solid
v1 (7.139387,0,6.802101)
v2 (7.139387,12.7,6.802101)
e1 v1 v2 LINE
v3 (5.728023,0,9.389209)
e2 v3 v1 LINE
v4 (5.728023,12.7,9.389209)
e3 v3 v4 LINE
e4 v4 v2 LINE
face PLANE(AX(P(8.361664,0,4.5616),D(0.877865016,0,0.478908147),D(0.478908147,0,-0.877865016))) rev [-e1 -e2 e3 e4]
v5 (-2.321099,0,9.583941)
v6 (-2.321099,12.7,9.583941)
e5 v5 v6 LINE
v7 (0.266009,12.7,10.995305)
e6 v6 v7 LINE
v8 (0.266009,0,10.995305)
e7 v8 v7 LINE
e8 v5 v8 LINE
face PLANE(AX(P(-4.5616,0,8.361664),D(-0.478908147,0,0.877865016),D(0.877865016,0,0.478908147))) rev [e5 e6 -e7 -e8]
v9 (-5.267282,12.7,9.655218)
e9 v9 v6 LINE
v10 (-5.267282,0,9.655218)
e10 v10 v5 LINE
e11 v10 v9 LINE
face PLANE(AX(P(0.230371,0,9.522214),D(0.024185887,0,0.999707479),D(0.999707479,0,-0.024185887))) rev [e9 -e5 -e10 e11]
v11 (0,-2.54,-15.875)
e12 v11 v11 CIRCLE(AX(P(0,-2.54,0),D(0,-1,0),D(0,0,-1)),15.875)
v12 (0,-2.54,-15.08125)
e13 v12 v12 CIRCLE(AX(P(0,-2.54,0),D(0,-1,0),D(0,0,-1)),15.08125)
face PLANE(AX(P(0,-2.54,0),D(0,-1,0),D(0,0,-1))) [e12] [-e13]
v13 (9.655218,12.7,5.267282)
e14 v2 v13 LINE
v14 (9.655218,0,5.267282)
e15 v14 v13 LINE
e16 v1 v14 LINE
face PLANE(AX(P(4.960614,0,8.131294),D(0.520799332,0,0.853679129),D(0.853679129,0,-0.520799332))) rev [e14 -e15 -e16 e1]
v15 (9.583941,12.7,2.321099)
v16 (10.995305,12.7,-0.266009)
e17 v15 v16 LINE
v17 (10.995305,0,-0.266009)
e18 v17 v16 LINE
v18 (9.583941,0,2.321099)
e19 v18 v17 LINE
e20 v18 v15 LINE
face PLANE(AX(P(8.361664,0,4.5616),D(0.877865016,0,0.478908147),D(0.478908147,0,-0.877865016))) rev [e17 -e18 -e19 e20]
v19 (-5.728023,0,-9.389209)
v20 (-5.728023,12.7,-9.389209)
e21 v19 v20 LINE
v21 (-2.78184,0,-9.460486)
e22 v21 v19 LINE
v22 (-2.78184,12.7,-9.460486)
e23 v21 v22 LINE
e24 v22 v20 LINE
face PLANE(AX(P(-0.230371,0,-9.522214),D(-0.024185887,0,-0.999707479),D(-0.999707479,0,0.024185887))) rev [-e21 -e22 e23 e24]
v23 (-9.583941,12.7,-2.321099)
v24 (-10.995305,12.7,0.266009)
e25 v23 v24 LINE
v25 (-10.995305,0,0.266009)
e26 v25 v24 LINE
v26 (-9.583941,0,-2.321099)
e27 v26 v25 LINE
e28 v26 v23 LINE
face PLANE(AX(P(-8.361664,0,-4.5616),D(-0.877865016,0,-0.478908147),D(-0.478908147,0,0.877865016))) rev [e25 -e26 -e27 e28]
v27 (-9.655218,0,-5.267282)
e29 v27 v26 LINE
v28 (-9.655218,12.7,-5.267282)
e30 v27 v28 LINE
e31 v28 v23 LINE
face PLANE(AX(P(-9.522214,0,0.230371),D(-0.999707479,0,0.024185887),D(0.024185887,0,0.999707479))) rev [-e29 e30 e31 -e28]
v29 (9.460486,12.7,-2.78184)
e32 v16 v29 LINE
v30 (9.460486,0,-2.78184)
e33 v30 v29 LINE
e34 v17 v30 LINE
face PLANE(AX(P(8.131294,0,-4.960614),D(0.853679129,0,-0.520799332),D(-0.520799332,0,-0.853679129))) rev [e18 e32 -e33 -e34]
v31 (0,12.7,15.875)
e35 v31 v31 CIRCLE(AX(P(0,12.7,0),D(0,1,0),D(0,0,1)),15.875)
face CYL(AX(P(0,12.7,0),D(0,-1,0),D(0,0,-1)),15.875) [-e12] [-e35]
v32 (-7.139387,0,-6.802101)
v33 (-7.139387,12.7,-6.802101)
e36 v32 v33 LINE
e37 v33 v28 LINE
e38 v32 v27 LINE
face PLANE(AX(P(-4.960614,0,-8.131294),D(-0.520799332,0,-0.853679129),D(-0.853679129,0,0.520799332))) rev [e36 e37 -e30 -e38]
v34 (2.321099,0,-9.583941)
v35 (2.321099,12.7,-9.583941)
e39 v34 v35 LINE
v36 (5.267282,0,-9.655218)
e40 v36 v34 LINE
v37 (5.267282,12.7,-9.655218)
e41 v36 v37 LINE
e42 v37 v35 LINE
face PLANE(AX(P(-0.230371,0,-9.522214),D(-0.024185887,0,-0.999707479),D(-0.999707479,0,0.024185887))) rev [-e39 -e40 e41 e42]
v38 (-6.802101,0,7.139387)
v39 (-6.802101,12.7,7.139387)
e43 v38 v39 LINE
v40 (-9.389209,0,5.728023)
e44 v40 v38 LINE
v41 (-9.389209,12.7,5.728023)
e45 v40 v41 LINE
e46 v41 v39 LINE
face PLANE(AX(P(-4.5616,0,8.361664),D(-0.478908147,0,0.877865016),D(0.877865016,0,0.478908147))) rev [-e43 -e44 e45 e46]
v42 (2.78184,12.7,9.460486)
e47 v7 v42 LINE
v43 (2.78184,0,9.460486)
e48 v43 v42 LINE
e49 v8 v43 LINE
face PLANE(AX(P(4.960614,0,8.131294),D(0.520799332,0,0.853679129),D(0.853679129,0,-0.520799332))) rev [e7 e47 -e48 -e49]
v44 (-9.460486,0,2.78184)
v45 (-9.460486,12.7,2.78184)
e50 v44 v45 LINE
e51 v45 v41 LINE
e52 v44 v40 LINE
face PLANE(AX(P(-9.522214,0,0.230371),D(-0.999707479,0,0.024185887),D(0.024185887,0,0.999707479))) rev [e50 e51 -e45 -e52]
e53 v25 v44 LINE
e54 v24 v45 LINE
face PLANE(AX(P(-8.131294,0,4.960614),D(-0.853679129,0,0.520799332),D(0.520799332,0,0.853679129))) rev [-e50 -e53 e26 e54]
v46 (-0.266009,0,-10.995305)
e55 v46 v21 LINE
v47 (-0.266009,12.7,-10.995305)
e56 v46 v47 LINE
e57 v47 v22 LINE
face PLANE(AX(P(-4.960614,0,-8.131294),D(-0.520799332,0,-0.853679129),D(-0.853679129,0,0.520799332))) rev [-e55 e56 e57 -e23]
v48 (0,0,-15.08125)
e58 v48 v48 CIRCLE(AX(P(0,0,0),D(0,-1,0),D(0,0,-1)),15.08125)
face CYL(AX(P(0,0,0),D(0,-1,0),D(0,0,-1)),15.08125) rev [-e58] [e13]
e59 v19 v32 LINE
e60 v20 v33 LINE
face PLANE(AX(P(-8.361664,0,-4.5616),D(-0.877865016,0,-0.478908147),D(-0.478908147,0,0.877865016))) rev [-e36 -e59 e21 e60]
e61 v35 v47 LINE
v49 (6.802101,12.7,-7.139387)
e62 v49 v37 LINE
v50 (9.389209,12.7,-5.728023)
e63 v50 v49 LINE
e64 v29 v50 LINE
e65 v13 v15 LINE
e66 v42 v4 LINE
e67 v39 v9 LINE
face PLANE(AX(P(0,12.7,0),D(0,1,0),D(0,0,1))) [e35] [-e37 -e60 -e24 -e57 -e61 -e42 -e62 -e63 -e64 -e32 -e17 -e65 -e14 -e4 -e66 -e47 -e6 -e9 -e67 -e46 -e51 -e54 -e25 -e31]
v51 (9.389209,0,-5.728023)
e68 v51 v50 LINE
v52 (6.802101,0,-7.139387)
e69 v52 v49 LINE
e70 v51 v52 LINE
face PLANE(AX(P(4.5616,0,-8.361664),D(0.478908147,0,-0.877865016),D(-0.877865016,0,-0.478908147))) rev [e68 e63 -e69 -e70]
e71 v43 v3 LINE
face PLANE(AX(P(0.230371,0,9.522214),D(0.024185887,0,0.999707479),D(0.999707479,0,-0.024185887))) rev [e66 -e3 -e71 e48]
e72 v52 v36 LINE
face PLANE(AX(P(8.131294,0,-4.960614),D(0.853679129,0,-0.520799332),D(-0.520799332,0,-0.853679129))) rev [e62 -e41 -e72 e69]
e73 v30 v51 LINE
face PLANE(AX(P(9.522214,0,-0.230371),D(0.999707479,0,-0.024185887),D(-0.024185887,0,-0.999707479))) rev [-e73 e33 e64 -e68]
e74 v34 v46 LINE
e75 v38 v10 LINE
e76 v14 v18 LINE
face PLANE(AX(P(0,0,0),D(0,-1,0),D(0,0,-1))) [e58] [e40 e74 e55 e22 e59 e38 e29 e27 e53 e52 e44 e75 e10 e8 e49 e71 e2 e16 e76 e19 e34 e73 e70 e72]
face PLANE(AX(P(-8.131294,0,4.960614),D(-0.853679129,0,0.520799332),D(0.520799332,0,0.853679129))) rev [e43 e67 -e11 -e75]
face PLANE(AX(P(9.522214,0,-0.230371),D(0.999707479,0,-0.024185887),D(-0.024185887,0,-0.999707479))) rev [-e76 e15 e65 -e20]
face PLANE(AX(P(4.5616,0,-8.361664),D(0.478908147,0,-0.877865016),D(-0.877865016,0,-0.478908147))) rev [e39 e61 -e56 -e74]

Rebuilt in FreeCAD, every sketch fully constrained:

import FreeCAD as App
import Part
import Sketcher

V = App.Vector
Q = App.Units.Quantity


def add_polygon(sketch, points):
    """Adds a closed chain of lines whose ends are joined by coincident constraints."""
    first, n = sketch.GeometryCount, len(points)
    for a, b in zip(points, points[1:] + points[:1]):
        sketch.addGeometry(Part.LineSegment(App.Vector(*a, 0), App.Vector(*b, 0)), False)
    for i in range(n):
        sketch.addConstraint(Sketcher.Constraint("Coincident", first + i, 2, first + (i + 1) % n, 1))

doc = App.newDocument("Part")
body = doc.addObject("PartDesign::Body", "Body")

sketch1 = body.newObject("Sketcher::SketchObject", "Sketch")
sketch1.AttachmentSupport = (doc.getObject("XZ_Plane"), [""])
sketch1.MapMode = "FlatFace"
sketch1.addGeometry(Part.Circle(V(0, 0, 0), V(0, 0, 1), 15.875), False)
sketch1.addConstraint(Sketcher.Constraint("Coincident", 0, 3, -1, 1))
sketch1.addConstraint(Sketcher.Constraint("Diameter", 0, Q("1.25 in")))
pad1 = body.newObject("PartDesign::Pad", "Pad")
pad1.Profile = sketch1
pad1.Length = Q("0.5 in")
pad1.Reversed = True

sketch2 = body.newObject("Sketcher::SketchObject", "Sketch001")
sketch2.AttachmentSupport = (doc.getObject("XZ_Plane"), [""])
sketch2.MapMode = "FlatFace"
sketch2.AttachmentOffset = App.Placement(V(0, 0, -0.5 * 25.4), App.Rotation())
add_polygon(sketch2, [(9.460486, -2.78184), (9.389209, -5.728023), (6.802101, -7.139387), (5.267282, -9.655218), (2.321099, -9.583941), (-0.266009, -10.995305), (-2.78184, -9.460486), (-5.728023, -9.389209), (-7.139387, -6.802101), (-9.655218, -5.267282), (-9.583941, -2.321099), (-10.995305, 0.266009), (-9.460486, 2.78184), (-9.389209, 5.728023), (-6.802101, 7.139387), (-5.267282, 9.655218), (-2.321099, 9.583941), (0.266009, 10.995305), (2.78184, 9.460486), (5.728023, 9.389209), (7.139387, 6.802101), (9.655218, 5.267282), (9.583941, 2.321099), (10.995305, -0.266009)])
sketch2.addConstraint(Sketcher.Constraint("Symmetric", 0, 2, 12, 2, -1, 1))
sketch2.addConstraint(Sketcher.Constraint("Symmetric", 1, 2, 13, 2, -1, 1))
sketch2.addConstraint(Sketcher.Constraint("Symmetric", 2, 2, 14, 2, -1, 1))
sketch2.addConstraint(Sketcher.Constraint("Symmetric", 3, 2, 15, 2, -1, 1))
sketch2.addConstraint(Sketcher.Constraint("Symmetric", 4, 2, 16, 2, -1, 1))
sketch2.addConstraint(Sketcher.Constraint("Symmetric", 5, 2, 17, 2, -1, 1))
sketch2.addConstraint(Sketcher.Constraint("Symmetric", 6, 2, 18, 2, -1, 1))
sketch2.addConstraint(Sketcher.Constraint("Symmetric", 7, 2, 19, 2, -1, 1))
sketch2.addConstraint(Sketcher.Constraint("Symmetric", 8, 2, 20, 2, -1, 1))
sketch2.addConstraint(Sketcher.Constraint("Symmetric", 9, 2, 21, 2, -1, 1))
sketch2.addConstraint(Sketcher.Constraint("Symmetric", 10, 2, 22, 2, -1, 1))
sketch2.addConstraint(Sketcher.Constraint("Symmetric", 11, 2, 23, 2, -1, 1))
sketch2.addConstraint(Sketcher.Constraint("Perpendicular", 0, 3))
sketch2.addConstraint(Sketcher.Constraint("Parallel", 1, 4))
sketch2.addConstraint(Sketcher.Constraint("Perpendicular", 2, 5))
sketch2.addConstraint(Sketcher.Constraint("Parallel", 3, 6))
sketch2.addConstraint(Sketcher.Constraint("Perpendicular", 4, 7))
sketch2.addConstraint(Sketcher.Constraint("Parallel", 5, 8))
sketch2.addConstraint(Sketcher.Constraint("Perpendicular", 6, 9))
sketch2.addConstraint(Sketcher.Constraint("Parallel", 7, 10))
sketch2.addConstraint(Sketcher.Constraint("Perpendicular", 8, 11))
sketch2.addConstraint(Sketcher.Constraint("Equal", 0, 1))
sketch2.addConstraint(Sketcher.Constraint("Equal", 1, 2))
sketch2.addConstraint(Sketcher.Constraint("Equal", 2, 3))
sketch2.addConstraint(Sketcher.Constraint("Equal", 3, 4))
sketch2.addConstraint(Sketcher.Constraint("Equal", 4, 5))
sketch2.addConstraint(Sketcher.Constraint("Equal", 5, 6))
sketch2.addConstraint(Sketcher.Constraint("Equal", 6, 7))
sketch2.addConstraint(Sketcher.Constraint("Equal", 7, 8))
sketch2.addConstraint(Sketcher.Constraint("Equal", 8, 9))
sketch2.addConstraint(Sketcher.Constraint("Equal", 9, 10))
sketch2.addConstraint(Sketcher.Constraint("Equal", 10, 11))
sketch2.addConstraint(Sketcher.Constraint("DistanceX", -1, 1, 1, 2, 6.802101))
sketch2.addConstraint(Sketcher.Constraint("DistanceX", -1, 1, 3, 2, 2.321099))
sketch2.addConstraint(Sketcher.Constraint("DistanceX", -1, 1, 0, 2, 9.389209))
sketch2.addConstraint(Sketcher.Constraint("DistanceY", 2, 2, -1, 1, 9.655218))
pocket1 = body.newObject("PartDesign::Pocket", "Pocket")
pocket1.Profile = sketch2
pocket1.Type = "ThroughAll"
pocket1.Reversed = True

sketch3 = body.newObject("Sketcher::SketchObject", "Sketch002")
sketch3.AttachmentSupport = (doc.getObject("XZ_Plane"), [""])
sketch3.MapMode = "FlatFace"
sketch3.addGeometry(Part.Circle(V(0, 0, 0), V(0, 0, 1), 15.875), False)
sketch3.addConstraint(Sketcher.Constraint("Coincident", 0, 3, -1, 1))
sketch3.addConstraint(Sketcher.Constraint("Diameter", 0, Q("1.25 in")))
pad2 = body.newObject("PartDesign::Pad", "Pad001")
pad2.Profile = sketch3
pad2.Length = Q("0.1 in")

sketch4 = body.newObject("Sketcher::SketchObject", "Sketch003")
sketch4.AttachmentSupport = (doc.getObject("XZ_Plane"), [""])
sketch4.MapMode = "FlatFace"
sketch4.AttachmentOffset = App.Placement(V(0, 0, 0.1 * 25.4), App.Rotation())
sketch4.addGeometry(Part.Circle(V(0, 0, 0), V(0, 0, 1), 15.08125), False)
sketch4.addConstraint(Sketcher.Constraint("Coincident", 0, 3, -1, 1))
sketch4.addConstraint(Sketcher.Constraint("Diameter", 0, Q("1.1875 in")))
pocket2 = body.newObject("PartDesign::Pocket", "Pocket001")
pocket2.Profile = sketch4
pocket2.Length = Q("0.1 in")

doc.recompute()
